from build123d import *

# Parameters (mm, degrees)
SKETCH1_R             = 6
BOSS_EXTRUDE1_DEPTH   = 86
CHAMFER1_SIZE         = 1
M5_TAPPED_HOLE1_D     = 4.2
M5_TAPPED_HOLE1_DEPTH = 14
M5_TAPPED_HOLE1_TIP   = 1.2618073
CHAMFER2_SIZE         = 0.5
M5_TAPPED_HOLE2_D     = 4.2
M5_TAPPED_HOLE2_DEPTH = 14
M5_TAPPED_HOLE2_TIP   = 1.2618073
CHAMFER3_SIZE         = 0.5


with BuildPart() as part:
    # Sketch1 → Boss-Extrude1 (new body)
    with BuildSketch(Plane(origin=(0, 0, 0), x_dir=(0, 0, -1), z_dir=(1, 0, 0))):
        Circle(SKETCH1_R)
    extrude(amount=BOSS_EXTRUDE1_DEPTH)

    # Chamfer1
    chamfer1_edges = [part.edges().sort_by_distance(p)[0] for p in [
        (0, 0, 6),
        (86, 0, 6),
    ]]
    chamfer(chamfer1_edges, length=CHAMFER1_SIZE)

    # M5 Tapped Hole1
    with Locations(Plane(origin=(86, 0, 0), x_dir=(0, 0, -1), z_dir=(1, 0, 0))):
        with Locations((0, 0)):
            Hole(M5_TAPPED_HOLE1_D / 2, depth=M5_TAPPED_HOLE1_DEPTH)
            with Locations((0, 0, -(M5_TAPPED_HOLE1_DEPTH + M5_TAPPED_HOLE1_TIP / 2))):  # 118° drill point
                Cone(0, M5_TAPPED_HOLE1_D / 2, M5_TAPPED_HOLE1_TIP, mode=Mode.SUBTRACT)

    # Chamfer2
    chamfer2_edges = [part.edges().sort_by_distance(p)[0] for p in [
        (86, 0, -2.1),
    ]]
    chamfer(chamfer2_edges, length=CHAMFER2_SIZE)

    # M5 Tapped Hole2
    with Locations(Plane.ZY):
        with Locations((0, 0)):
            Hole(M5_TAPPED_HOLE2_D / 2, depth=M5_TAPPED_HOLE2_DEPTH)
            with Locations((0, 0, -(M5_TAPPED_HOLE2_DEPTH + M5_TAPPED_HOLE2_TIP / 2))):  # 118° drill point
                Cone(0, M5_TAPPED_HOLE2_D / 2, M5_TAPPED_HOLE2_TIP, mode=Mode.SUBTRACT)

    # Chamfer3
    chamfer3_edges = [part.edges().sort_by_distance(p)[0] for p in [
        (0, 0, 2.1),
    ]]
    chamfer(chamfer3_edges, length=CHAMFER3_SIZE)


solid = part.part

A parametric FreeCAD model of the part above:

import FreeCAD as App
import Part
import Sketcher
from FreeCAD import Vector
Q = App.Units.Quantity


def edges_at(feature, points):
    """Names of the edges that pass closest to the given points."""
    edges = feature.Shape.Edges
    near = lambda p: min(range(len(edges)), key=lambda i: edges[i].distToShape(Part.Vertex(*p))[0])
    return sorted({f"Edge{near(p) + 1}" for p in points})

doc = App.newDocument("Part")
body = doc.addObject("PartDesign::Body", "Body")

sketch1 = body.newObject("Sketcher::SketchObject", "Sketch")
sketch1.AttachmentSupport = (doc.getObject("YZ_Plane"), [""])
sketch1.MapMode = "FlatFace"
sketch1.addGeometry(Part.Circle(Vector(0, 0, 0), Vector(0, 0, 1), 6), False)
sketch1.addConstraint([
    Sketcher.Constraint("Coincident", 0, 3, -1, 1),
    Sketcher.Constraint("Diameter", 0, Q("12 mm")),
])
pad1 = body.newObject("PartDesign::Pad", "Pad")
pad1.Profile = sketch1
pad1.Length = 86
doc.recompute()

chamfer = body.newObject("PartDesign::Chamfer", "Chamfer")
chamfer.Base = (pad1, edges_at(pad1, [(0, 0, 6), (86, 0, 6)]))
chamfer.Size = 1

sketch2 = body.newObject("Sketcher::SketchObject", "Sketch001")
sketch2.AttachmentSupport = (doc.getObject("YZ_Plane"), [""])
sketch2.MapMode = "FlatFace"
sketch2.AttachmentOffset = App.Placement(Vector(0, 0, 86), App.Rotation())
sketch2.addGeometry(Part.Circle(Vector(0, 0, 0), Vector(0, 0, 1), 2.1), False)
sketch2.addConstraint([
    Sketcher.Constraint("Coincident", 0, 3, -1, 1),
    Sketcher.Constraint("Diameter", 0, Q("4.2 mm")),
])
doc.recompute()
hole = body.newObject("PartDesign::Hole", "Hole")
hole.Profile = sketch2
hole.ThreadType = "None"
hole.Diameter = 4.2
hole.DepthType = "Dimension"
hole.Depth = 14
hole.DrillPoint = "Angled"
hole.DrillPointAngle = 118
doc.recompute()

chamfer2 = body.newObject("PartDesign::Chamfer", "Chamfer001")
chamfer2.Base = (hole, edges_at(hole, [(86, 0, -2.1)]))
chamfer2.Size = 0.5

sketch3 = body.newObject("Sketcher::SketchObject", "Sketch002")
sketch3.AttachmentSupport = (doc.getObject("YZ_Plane"), [""])
sketch3.MapMode = "FlatFace"
sketch3.addGeometry(Part.Circle(Vector(0, 0, 0), Vector(0, 0, 1), 2.1), False)
sketch3.addConstraint([
    Sketcher.Constraint("Coincident", 0, 3, -1, 1),
    Sketcher.Constraint("Diameter", 0, Q("4.2 mm")),
])
doc.recompute()
hole2 = body.newObject("PartDesign::Hole", "Hole001")
hole2.Profile = sketch3
hole2.ThreadType = "None"
hole2.Diameter = 4.2
hole2.DepthType = "Dimension"
hole2.Depth = 14
hole2.DrillPoint = "Angled"
hole2.DrillPointAngle = 118
hole2.Reversed = True
doc.recompute()

chamfer3 = body.newObject("PartDesign::Chamfer", "Chamfer002")
chamfer3.Base = (hole2, edges_at(hole2, [(0, 0, 2.1)]))
chamfer3.Size = 0.5

doc.recompute()
